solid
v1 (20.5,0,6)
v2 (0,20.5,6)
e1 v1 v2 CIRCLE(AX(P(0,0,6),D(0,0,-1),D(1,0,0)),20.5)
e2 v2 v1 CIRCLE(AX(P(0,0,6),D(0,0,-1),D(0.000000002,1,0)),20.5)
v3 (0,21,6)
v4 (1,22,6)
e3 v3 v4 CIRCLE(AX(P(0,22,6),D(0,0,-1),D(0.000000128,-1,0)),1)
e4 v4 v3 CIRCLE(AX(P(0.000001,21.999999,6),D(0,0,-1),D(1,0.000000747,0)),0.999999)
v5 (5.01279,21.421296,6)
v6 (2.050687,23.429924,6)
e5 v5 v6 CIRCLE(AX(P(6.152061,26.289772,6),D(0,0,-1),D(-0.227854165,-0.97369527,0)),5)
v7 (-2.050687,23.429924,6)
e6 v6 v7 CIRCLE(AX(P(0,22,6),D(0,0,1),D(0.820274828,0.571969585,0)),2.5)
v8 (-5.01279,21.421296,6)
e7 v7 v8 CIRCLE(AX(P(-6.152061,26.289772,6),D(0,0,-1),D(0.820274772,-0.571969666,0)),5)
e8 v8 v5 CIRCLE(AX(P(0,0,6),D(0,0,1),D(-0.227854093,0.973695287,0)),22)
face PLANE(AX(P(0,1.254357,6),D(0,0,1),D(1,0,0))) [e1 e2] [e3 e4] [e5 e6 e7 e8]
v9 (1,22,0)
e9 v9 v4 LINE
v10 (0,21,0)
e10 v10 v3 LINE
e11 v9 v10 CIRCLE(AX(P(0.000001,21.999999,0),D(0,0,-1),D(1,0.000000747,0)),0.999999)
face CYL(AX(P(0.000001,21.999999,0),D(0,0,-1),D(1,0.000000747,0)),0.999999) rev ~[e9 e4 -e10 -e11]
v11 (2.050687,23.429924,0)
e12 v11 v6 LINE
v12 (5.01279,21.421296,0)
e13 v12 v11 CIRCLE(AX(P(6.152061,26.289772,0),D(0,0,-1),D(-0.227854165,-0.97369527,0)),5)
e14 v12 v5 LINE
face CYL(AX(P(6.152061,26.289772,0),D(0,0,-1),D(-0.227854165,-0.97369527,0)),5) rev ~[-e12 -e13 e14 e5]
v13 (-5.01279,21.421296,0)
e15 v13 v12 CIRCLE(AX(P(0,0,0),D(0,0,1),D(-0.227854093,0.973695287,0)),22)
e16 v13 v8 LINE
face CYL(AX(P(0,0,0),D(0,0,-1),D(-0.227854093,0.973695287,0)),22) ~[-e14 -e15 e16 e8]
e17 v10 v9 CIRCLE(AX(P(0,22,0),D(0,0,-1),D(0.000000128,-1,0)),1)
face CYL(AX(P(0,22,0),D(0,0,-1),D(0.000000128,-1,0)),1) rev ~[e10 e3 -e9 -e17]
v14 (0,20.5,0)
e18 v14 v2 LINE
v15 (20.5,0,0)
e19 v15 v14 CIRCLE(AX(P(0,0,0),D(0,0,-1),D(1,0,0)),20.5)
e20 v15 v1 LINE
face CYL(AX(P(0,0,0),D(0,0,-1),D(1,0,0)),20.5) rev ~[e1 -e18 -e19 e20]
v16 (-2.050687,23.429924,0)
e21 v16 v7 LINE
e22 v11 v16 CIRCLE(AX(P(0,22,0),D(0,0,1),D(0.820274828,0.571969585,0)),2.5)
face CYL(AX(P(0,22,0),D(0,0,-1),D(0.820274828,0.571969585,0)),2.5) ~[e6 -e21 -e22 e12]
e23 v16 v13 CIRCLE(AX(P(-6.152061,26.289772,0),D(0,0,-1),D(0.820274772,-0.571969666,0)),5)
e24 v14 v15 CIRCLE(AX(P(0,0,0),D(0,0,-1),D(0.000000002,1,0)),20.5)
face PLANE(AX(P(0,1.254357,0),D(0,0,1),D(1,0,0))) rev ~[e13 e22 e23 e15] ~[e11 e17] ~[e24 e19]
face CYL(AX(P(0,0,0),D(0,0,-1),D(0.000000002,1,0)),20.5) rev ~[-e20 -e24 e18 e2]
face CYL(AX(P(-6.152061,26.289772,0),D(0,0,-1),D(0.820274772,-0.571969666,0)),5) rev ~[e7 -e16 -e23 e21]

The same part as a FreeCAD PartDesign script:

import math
import FreeCAD as App
import Part
import Sketcher

V = App.Vector

doc = App.newDocument("Part")
body = doc.addObject("PartDesign::Body", "Body")

# Sketch on XY plane
sketch1 = body.newObject("Sketcher::SketchObject", "Sketch")
sketch1.AttachmentSupport = (doc.getObject("XY_Plane"), [""])
sketch1.MapMode = "FlatFace"
sketch1.addGeometry(Part.ArcOfCircle(Part.Circle(V(-6.2, 26.3, 0), V(0, 0, 1), 5), math.radians(-77), math.radians(-35)), False)
sketch1.addGeometry(Part.ArcOfCircle(Part.Circle(V(0, 0, 0), V(0, 0, 1), 22), math.radians(103), math.radians(437)), False)
sketch1.addGeometry(Part.ArcOfCircle(Part.Circle(V(6.2, 26.3, 0), V(0, 0, 1), 5), math.radians(-145), math.radians(-103)), False)
sketch1.addGeometry(Part.ArcOfCircle(Part.Circle(V(0, 22, 0), V(0, 0, 1), 2.5), math.radians(35), math.radians(145)), False)
sketch1.addGeometry(Part.ArcOfCircle(Part.Circle(V(0, 0, 0), V(0, 0, 1), 20.5), math.radians(90), math.radians(360)), False)
sketch1.addGeometry(Part.ArcOfCircle(Part.Circle(V(0, 0, 0), V(0, 0, 1), 20.5), math.radians(0), math.radians(90)), False)
sketch1.addGeometry(Part.ArcOfCircle(Part.Circle(V(0, 22, 0), V(0, 0, 1), 1), math.radians(0), math.radians(270)), False)
sketch1.addGeometry(Part.ArcOfCircle(Part.Circle(V(0, 22, 0), V(0, 0, 1), 1), math.radians(-90), math.radians(0)), False)
sketch1.addConstraint(Sketcher.Constraint("Tangent", 0, 1, 1, 1))
sketch1.addConstraint(Sketcher.Constraint("Tangent", 1, 2, 2, 2))
sketch1.addConstraint(Sketcher.Constraint("Tangent", 2, 1, 3, 1))
sketch1.addConstraint(Sketcher.Constraint("Tangent", 3, 2, 0, 2))
sketch1.addConstraint(Sketcher.Constraint("Tangent", 4, 1, 5, 2))
sketch1.addConstraint(Sketcher.Constraint("Coincident", 5, 1, 4, 2))
sketch1.addConstraint(Sketcher.Constraint("Tangent", 6, 1, 7, 2))
sketch1.addConstraint(Sketcher.Constraint("Coincident", 7, 1, 6, 2))
sketch1.addConstraint(Sketcher.Constraint("Coincident", 1, 3, -1, 1))
sketch1.addConstraint(Sketcher.Constraint("Coincident", 4, 3, -1, 1))
sketch1.addConstraint(Sketcher.Constraint("Coincident", 6, 3, 3, 3))
sketch1.addConstraint(Sketcher.Constraint("Equal", 0, 2))
sketch1.addConstraint(Sketcher.Constraint("PointOnObject", 3, 3, -2))
sketch1.addConstraint(Sketcher.Constraint("PointOnObject", 4, 1, -2))
sketch1.addConstraint(Sketcher.Constraint("PointOnObject", 5, 1, -1))
sketch1.addConstraint(Sketcher.Constraint("PointOnObject", 7, 1, -2))
sketch1.addConstraint(Sketcher.Constraint("Horizontal", 7, 3, 6, 1))
sketch1.addConstraint(Sketcher.Constraint("Radius", 0, 5.0))
sketch1.addConstraint(Sketcher.Constraint("Radius", 1, 22.0))
sketch1.addConstraint(Sketcher.Constraint("Radius", 6, 1.0))
sketch1.addConstraint(Sketcher.Constraint("Radius", 3, 2.5))
sketch1.addConstraint(Sketcher.Constraint("Radius", 4, 20.5))
sketch1.addConstraint(Sketcher.Constraint("DistanceY", -1, 1, 3, 3, 22.0))
pad1 = body.newObject("PartDesign::Pad", "Pad")
pad1.Profile = sketch1
pad1.Length = 6

doc.recompute()
